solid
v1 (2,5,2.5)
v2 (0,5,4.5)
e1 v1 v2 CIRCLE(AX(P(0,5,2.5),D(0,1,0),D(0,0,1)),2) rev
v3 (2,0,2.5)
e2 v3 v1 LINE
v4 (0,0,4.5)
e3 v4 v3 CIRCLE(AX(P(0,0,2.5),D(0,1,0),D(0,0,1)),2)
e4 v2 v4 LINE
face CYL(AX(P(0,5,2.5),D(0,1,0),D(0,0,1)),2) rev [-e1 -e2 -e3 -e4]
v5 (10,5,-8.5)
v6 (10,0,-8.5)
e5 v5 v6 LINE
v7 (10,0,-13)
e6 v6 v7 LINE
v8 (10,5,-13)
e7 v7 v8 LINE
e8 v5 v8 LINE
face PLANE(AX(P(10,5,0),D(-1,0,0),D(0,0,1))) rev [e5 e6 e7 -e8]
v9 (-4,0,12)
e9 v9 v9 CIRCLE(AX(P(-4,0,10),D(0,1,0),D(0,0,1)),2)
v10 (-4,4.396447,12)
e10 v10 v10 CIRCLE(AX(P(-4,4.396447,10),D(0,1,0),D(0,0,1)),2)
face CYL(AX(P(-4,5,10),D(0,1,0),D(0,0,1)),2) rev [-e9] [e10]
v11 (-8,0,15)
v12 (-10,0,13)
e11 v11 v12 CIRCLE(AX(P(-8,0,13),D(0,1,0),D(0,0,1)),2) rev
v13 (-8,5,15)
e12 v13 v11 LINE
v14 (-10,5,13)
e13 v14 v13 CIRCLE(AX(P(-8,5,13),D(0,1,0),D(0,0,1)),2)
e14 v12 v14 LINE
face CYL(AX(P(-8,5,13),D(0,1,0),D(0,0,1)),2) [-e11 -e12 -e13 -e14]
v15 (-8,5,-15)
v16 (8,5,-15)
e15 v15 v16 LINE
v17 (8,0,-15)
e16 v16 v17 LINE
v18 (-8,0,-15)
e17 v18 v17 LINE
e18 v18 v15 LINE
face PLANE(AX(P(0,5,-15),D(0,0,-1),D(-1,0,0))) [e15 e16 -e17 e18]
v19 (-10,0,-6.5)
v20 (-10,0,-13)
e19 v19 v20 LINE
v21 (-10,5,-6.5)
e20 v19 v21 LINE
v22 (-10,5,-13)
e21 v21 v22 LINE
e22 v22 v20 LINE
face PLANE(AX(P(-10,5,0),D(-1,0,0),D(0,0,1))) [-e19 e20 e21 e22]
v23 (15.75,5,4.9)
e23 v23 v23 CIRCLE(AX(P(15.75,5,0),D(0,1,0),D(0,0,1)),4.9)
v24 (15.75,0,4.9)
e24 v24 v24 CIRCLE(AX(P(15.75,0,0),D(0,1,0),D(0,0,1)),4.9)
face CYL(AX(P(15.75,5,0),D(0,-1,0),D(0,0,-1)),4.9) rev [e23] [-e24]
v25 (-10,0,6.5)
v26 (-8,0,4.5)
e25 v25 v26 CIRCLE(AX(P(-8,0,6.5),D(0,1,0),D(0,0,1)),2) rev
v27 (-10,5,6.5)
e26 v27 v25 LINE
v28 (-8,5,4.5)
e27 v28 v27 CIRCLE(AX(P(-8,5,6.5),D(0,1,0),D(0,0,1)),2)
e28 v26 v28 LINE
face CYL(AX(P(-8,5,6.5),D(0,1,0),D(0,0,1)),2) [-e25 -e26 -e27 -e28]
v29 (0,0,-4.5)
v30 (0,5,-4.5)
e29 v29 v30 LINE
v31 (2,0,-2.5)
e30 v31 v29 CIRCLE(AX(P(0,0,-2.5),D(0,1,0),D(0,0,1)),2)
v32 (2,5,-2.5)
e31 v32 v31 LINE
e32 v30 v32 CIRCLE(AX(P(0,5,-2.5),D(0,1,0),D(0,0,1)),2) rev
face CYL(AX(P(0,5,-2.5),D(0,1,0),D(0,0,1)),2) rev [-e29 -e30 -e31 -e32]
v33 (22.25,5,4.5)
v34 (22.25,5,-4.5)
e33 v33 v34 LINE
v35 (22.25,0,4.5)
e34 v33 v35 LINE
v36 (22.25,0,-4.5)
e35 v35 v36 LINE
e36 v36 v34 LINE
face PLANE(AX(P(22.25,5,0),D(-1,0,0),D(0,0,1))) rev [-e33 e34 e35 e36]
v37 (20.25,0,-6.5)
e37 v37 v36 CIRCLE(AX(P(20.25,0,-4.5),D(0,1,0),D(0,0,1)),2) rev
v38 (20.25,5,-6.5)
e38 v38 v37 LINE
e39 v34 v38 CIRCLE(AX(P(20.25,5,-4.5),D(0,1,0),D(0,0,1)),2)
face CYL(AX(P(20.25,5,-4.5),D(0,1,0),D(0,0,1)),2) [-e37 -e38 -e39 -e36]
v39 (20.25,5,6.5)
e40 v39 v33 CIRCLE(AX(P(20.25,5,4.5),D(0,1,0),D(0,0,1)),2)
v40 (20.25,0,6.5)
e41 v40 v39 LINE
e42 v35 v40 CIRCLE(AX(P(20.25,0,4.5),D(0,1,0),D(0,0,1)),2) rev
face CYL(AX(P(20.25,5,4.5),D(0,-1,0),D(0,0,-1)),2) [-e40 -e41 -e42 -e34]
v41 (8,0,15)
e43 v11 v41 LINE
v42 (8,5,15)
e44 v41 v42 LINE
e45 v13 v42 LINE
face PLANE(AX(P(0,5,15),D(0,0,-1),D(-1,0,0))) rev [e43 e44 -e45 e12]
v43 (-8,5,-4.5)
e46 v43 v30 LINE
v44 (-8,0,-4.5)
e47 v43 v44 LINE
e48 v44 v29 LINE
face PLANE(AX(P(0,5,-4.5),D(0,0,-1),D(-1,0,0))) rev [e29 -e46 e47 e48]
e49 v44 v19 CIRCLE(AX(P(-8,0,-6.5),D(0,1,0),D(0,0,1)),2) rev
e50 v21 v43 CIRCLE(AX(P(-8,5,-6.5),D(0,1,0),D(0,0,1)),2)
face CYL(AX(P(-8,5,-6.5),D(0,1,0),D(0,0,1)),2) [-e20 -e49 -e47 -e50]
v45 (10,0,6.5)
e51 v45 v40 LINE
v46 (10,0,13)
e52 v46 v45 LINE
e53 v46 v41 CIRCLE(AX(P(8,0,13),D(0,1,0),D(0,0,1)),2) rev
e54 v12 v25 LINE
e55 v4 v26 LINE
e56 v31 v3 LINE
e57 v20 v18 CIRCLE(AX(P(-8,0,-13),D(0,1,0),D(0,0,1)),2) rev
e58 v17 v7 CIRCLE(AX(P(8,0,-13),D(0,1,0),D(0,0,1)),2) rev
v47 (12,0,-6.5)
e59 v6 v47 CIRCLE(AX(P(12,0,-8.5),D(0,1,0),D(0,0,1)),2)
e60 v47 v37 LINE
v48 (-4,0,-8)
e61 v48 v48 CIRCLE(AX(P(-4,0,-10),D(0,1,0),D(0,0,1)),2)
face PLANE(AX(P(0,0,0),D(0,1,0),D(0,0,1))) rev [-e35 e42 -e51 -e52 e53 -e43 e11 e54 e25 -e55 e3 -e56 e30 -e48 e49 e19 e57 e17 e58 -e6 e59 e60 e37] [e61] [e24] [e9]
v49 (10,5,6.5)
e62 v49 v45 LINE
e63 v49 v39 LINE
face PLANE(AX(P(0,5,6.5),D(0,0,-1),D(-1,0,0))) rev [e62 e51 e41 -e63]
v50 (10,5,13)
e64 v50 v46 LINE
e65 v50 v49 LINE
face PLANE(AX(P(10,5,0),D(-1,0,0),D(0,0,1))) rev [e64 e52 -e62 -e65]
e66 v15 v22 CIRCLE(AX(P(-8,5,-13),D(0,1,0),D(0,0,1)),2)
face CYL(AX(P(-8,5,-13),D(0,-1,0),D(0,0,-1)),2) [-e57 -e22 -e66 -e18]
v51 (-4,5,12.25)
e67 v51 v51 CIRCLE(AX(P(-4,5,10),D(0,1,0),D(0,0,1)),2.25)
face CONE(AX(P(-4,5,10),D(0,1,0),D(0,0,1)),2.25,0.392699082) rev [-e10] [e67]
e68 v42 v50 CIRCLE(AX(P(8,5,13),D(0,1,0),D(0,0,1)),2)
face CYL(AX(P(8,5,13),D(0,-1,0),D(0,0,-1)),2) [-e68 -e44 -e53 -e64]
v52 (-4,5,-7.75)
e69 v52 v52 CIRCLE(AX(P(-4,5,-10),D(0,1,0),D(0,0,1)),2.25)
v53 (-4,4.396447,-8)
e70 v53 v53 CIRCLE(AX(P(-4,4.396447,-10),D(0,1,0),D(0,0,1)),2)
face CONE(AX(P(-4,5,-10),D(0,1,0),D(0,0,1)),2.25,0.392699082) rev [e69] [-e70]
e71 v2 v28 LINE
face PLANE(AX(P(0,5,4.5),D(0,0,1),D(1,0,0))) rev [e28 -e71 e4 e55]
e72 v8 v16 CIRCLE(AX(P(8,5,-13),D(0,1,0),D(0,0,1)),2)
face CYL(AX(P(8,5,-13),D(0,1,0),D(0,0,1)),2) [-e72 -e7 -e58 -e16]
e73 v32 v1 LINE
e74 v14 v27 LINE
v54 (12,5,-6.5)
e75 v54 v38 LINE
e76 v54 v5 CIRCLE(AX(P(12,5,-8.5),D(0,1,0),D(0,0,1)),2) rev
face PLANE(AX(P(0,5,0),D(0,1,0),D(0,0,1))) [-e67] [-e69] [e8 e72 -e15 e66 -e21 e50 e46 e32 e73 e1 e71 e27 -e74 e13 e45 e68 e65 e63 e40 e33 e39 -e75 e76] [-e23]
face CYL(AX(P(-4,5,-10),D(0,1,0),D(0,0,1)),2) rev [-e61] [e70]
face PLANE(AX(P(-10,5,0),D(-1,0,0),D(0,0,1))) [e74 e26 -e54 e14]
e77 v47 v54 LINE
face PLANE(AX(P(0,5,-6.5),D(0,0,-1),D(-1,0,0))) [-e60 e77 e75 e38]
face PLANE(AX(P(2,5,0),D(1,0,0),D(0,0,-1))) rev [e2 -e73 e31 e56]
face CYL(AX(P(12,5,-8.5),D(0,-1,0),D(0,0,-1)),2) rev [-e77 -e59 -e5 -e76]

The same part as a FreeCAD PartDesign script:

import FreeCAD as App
import Part
import Sketcher
Q = App.Units.Quantity


def edges_at(feature, points):
    """Names of the edges that pass closest to the given points."""
    edges = feature.Shape.Edges
    near = lambda p: min(range(len(edges)), key=lambda i: edges[i].distToShape(Part.Vertex(*p))[0])
    return sorted({f"Edge{near(p) + 1}" for p in points})


def add_polygon(sketch, points):
    """Adds a closed chain of lines whose ends are joined by coincident constraints."""
    first, n = sketch.GeometryCount, len(points)
    for a, b in zip(points, points[1:] + points[:1]):
        sketch.addGeometry(Part.LineSegment(App.Vector(*a, 0), App.Vector(*b, 0)), False)
    for i in range(n):
        sketch.addConstraint(Sketcher.Constraint("Coincident", first + i, 2, first + (i + 1) % n, 1))

doc = App.newDocument("Part")
body = doc.addObject("PartDesign::Body", "Body")

# Sketch on XZ plane
sketch1 = body.newObject("Sketcher::SketchObject", "Sketch")
sketch1.AttachmentSupport = (doc.getObject("XZ_Plane"), [""])
sketch1.MapMode = "FlatFace"
add_polygon(sketch1, [(-10, -15), (-10, -4.5), (2, -4.5), (2, 4.5), (-10, 4.5), (-10, 15), (10, 15), (10, 6.5), (22.25, 6.5), (22.25, -6.5), (10, -6.5), (10, -15)])  # lines 0-11
sketch1.addGeometry(Part.Circle(App.Vector(15.75, 0, 0), App.Vector(0, 0, 1), 4.9), False)  # 12
sketch1.addConstraint(Sketcher.Constraint("Vertical", 0))
sketch1.addConstraint(Sketcher.Constraint("Horizontal", 1))
sketch1.addConstraint(Sketcher.Constraint("Vertical", 2))
sketch1.addConstraint(Sketcher.Constraint("Horizontal", 3))
sketch1.addConstraint(Sketcher.Constraint("Vertical", 4))
sketch1.addConstraint(Sketcher.Constraint("Horizontal", 5))
sketch1.addConstraint(Sketcher.Constraint("Vertical", 6))
sketch1.addConstraint(Sketcher.Constraint("Horizontal", 7))
sketch1.addConstraint(Sketcher.Constraint("Vertical", 8))
sketch1.addConstraint(Sketcher.Constraint("Horizontal", 9))
sketch1.addConstraint(Sketcher.Constraint("Vertical", 10))
sketch1.addConstraint(Sketcher.Constraint("Horizontal", 11))
sketch1.addConstraint(Sketcher.Constraint("Symmetric", 4, 2, 10, 2, -1, 1))
sketch1.addConstraint(Sketcher.Constraint("Symmetric", 0, 2, 3, 2, -1))
sketch1.addConstraint(Sketcher.Constraint("Symmetric", 6, 2, 9, 2, -1))
sketch1.addConstraint(Sketcher.Constraint("PointOnObject", 12, 3, -1))
sketch1.addConstraint(Sketcher.Constraint("Diameter", 12, Q("9.8 mm")))
sketch1.addConstraint(Sketcher.Constraint("DistanceX", 1, 1, 1, 2, Q("12 mm")))
sketch1.addConstraint(Sketcher.Constraint("DistanceX", 5, 1, 5, 2, Q("20 mm")))
sketch1.addConstraint(Sketcher.Constraint("DistanceY", 2, 1, 2, 2, Q("9 mm")))
sketch1.addConstraint(Sketcher.Constraint("DistanceY", 8, 2, 8, 1, Q("13 mm")))
sketch1.addConstraint(Sketcher.Constraint("DistanceY", 0, 1, 0, 2, Q("10.5 mm")))
sketch1.addConstraint(Sketcher.Constraint("DistanceX", 7, 1, 7, 2, Q("12.25 mm")))
sketch1.addConstraint(Sketcher.Constraint("DistanceX", 12, 3, 7, 2, Q("6.5 mm")))
pad1 = body.newObject("PartDesign::Pad", "Pad")
pad1.Profile = sketch1
pad1.Length = 5
pad1.Reversed = True
doc.recompute()

fillet = body.newObject("PartDesign::Fillet", "Fillet")
fillet.Base = (pad1, edges_at(pad1, [
    (10, 2.5, 15),
    (-10, 2.5, 15),
    (-10, 2.5, 4.5),
    (2, 2.5, 4.5),
    (2, 2.5, -4.5),
    (-10, 2.5, -4.5),
    (-10, 2.5, -15),
    (10, 2.5, -15),
    (10, 2.5, -6.5),
    (22.25, 2.5, -6.5),
    (22.25, 2.5, 6.5),
]))
fillet.Radius = 2

# Sketch on YZ plane
sketch2 = body.newObject("Sketcher::SketchObject", "Sketch001")
sketch2.AttachmentSupport = (doc.getObject("YZ_Plane"), [""])
sketch2.MapMode = "FlatFace"
sketch2.AttachmentOffset = App.Placement(App.Vector(0, 0, -4), App.Rotation())
add_polygon(sketch2, [(0, 0), (5, 0), (5, 2.25), (4.396447, 2), (0, 2)])  # lines 0-4
sketch2.addConstraint(Sketcher.Constraint("Horizontal", 0))
sketch2.addConstraint(Sketcher.Constraint("Vertical", 1))
sketch2.addConstraint(Sketcher.Constraint("Horizontal", 3))
sketch2.addConstraint(Sketcher.Constraint("Vertical", 4))
sketch2.addConstraint(Sketcher.Constraint("Coincident", 4, 2, -1, 1))
sketch2.addConstraint(Sketcher.Constraint("DistanceX", 0, 1, 0, 2, Q("5 mm")))
sketch2.addConstraint(Sketcher.Constraint("DistanceY", 4, 2, 4, 1, Q("2 mm")))
sketch2.addConstraint(Sketcher.Constraint("Angle", 2, Q("-157.5 deg")))
sketch2.addConstraint(Sketcher.Constraint("DistanceY", 1, 1, 1, 2, Q("2.25 mm")))
groove = body.newObject("PartDesign::Groove", "Groove")
groove.Profile = sketch2
groove.ReferenceAxis = (sketch2, ["H_Axis"])
groove.Angle = 360
doc.recompute()

linearpattern = body.newObject("PartDesign::LinearPattern", "LinearPattern")
linearpattern.Originals = [groove]
linearpattern.Direction = (doc.getObject("Z_Axis"), [""])
linearpattern.Mode = "offset"
linearpattern.Offset = 10
linearpattern.Occurrences = 2
body.Tip = linearpattern
doc.recompute()

linearpattern2 = body.newObject("PartDesign::LinearPattern", "LinearPattern001")
linearpattern2.Originals = [groove]
linearpattern2.Direction = (doc.getObject("Z_Axis"), [""])
linearpattern2.Mode = "offset"
linearpattern2.Offset = 10
linearpattern2.Occurrences = 2
linearpattern2.Reversed = True
body.Tip = linearpattern2

doc.recompute()
